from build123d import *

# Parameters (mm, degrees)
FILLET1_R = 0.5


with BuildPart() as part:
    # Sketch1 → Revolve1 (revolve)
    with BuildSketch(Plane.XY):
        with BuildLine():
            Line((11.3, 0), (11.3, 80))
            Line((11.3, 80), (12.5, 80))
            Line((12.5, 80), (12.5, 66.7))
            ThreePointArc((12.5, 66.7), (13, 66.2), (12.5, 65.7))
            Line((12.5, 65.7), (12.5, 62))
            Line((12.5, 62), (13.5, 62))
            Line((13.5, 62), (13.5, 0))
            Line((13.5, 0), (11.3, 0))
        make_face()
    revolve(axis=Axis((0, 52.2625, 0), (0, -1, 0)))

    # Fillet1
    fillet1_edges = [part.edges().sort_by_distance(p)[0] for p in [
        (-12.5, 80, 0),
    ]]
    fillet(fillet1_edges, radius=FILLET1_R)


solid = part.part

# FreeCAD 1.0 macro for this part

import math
import FreeCAD as App
import Part
import Sketcher

V = App.Vector
Q = App.Units.Quantity


def edges_at(feature, points):
    """Names of the edges that pass closest to the given points."""
    edges = feature.Shape.Edges
    near = lambda p: min(range(len(edges)), key=lambda i: edges[i].distToShape(Part.Vertex(*p))[0])
    return sorted({f"Edge{near(p) + 1}" for p in points})

doc = App.newDocument("Part")
body = doc.addObject("PartDesign::Body", "Body")

# Sketch on XY plane
sketch1 = doc.addObject("Sketcher::SketchObject", "Sketch")
body.addObject(sketch1)
sketch1.AttachmentSupport = (doc.XY_Plane, [""])
sketch1.MapMode = "FlatFace"
sketch1.addGeometry(Part.LineSegment(V(11.3, 80, 0), V(11.3, 0, 0)), False)
sketch1.addGeometry(Part.LineSegment(V(11.3, 0, 0), V(13.5, 0, 0)), False)
sketch1.addGeometry(Part.LineSegment(V(13.5, 0, 0), V(13.5, 62, 0)), False)
sketch1.addGeometry(Part.LineSegment(V(13.5, 62, 0), V(12.5, 62, 0)), False)
sketch1.addGeometry(Part.LineSegment(V(12.5, 62, 0), V(12.5, 65.7, 0)), False)
sketch1.addGeometry(Part.ArcOfCircle(Part.Circle(V(12.5, 66.2, 0), V(0, 0, 1), 0.5), math.radians(-90), math.radians(90)), False)
sketch1.addGeometry(Part.LineSegment(V(12.5, 66.7, 0), V(12.5, 80, 0)), False)
sketch1.addGeometry(Part.LineSegment(V(12.5, 80, 0), V(11.3, 80, 0)), False)
sketch1.addConstraint(Sketcher.Constraint("Coincident", 0, 2, 1, 1))
sketch1.addConstraint(Sketcher.Constraint("Coincident", 1, 2, 2, 1))
sketch1.addConstraint(Sketcher.Constraint("Coincident", 2, 2, 3, 1))
sketch1.addConstraint(Sketcher.Constraint("Coincident", 3, 2, 4, 1))
sketch1.addConstraint(Sketcher.Constraint("Coincident", 4, 2, 5, 1))
sketch1.addConstraint(Sketcher.Constraint("Coincident", 5, 2, 6, 1))
sketch1.addConstraint(Sketcher.Constraint("Coincident", 6, 2, 7, 1))
sketch1.addConstraint(Sketcher.Constraint("Coincident", 7, 2, 0, 1))
sketch1.addConstraint(Sketcher.Constraint("Vertical", 0))
sketch1.addConstraint(Sketcher.Constraint("Horizontal", 1))
sketch1.addConstraint(Sketcher.Constraint("Vertical", 2))
sketch1.addConstraint(Sketcher.Constraint("Horizontal", 3))
sketch1.addConstraint(Sketcher.Constraint("Vertical", 4))
sketch1.addConstraint(Sketcher.Constraint("Vertical", 6))
sketch1.addConstraint(Sketcher.Constraint("Horizontal", 7))
sketch1.addConstraint(Sketcher.Constraint("PointOnObject", 0, 2, -1))
sketch1.addConstraint(Sketcher.Constraint("Vertical", 5, 3, 3, 2))
sketch1.addConstraint(Sketcher.Constraint("Vertical", 4, 2, 5, 2))
sketch1.addConstraint(Sketcher.Constraint("Radius", 5, Q("0.5 mm")))
sketch1.addConstraint(Sketcher.Constraint("DistanceX", 3, 2, 3, 1, Q("1 mm")))
sketch1.addConstraint(Sketcher.Constraint("DistanceY", 0, 2, 0, 1, Q("80 mm")))
sketch1.addConstraint(Sketcher.Constraint("DistanceY", 2, 1, 2, 2, Q("62 mm")))
sketch1.addConstraint(Sketcher.Constraint("DistanceX", 1, 1, 1, 2, Q("2.2 mm")))
sketch1.addConstraint(Sketcher.Constraint("DistanceY", 4, 1, 4, 2, Q("3.7 mm")))
sketch1.addConstraint(Sketcher.Constraint("DistanceX", -1, 1, 5, 3, Q("12.5 mm")))
revolution = doc.addObject("PartDesign::Revolution", "Revolution")
body.addObject(revolution)
revolution.Profile = sketch1
revolution.ReferenceAxis = (sketch1, ["V_Axis"])
revolution.Angle = 360
doc.recompute()

fillet = doc.addObject("PartDesign::Fillet", "Fillet")
body.addObject(fillet)
fillet.Base = (revolution, edges_at(revolution, [(-12.5, 80, 0)]))
fillet.Radius = 0.5

doc.recompute()
